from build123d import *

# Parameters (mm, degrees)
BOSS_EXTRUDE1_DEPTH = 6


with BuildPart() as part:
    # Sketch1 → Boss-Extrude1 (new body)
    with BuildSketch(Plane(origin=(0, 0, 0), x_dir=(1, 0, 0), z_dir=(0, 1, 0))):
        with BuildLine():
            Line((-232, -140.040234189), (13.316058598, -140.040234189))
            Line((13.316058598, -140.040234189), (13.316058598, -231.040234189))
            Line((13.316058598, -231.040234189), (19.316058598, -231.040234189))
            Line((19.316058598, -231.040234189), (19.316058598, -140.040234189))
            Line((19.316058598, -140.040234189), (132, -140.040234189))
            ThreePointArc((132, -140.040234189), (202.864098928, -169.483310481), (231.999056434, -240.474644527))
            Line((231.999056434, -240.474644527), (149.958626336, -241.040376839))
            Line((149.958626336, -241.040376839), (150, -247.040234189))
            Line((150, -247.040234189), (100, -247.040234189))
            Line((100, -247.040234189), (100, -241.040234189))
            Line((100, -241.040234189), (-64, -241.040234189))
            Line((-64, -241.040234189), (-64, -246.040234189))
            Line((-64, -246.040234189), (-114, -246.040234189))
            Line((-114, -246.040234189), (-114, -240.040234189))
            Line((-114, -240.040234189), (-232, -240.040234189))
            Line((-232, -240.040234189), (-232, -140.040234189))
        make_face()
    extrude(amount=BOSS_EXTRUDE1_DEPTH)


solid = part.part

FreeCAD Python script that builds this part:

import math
import FreeCAD as App
import Part
import Sketcher
from FreeCAD import Vector

doc = App.newDocument("Part")
body = doc.addObject("PartDesign::Body", "Body")

# Sketch on XZ plane
sketch1 = body.newObject("Sketcher::SketchObject", "Sketch")
sketch1.AttachmentSupport = (doc.getObject("XZ_Plane"), [""])
sketch1.MapMode = "FlatFace"
sketch1.addGeometry(Part.LineSegment(Vector(13, 140, 0), Vector(-232, 140, 0)), False)
sketch1.addGeometry(Part.LineSegment(Vector(-232, 140, 0), Vector(-232, 240, 0)), False)
sketch1.addGeometry(Part.LineSegment(Vector(-232, 240, 0), Vector(-114, 240, 0)), False)
sketch1.addGeometry(Part.LineSegment(Vector(-114, 240, 0), Vector(-114, 246, 0)), False)
sketch1.addGeometry(Part.LineSegment(Vector(-114, 246, 0), Vector(-64, 246, 0)), False)
sketch1.addGeometry(Part.LineSegment(Vector(-64, 246, 0), Vector(-64, 241, 0)), False)
sketch1.addGeometry(Part.LineSegment(Vector(-64, 241, 0), Vector(100, 241, 0)), False)
sketch1.addGeometry(Part.LineSegment(Vector(100, 241, 0), Vector(100, 247, 0)), False)
sketch1.addGeometry(Part.LineSegment(Vector(100, 247, 0), Vector(150, 247, 0)), False)
sketch1.addGeometry(Part.LineSegment(Vector(150, 247, 0), Vector(150, 241, 0)), False)
sketch1.addGeometry(Part.LineSegment(Vector(150, 241, 0), Vector(232, 240, 0)), False)
sketch1.addGeometry(Part.ArcOfCircle(Part.Circle(Vector(132, 240, 0), Vector(0, 0, 1), 100), math.radians(-90), math.radians(0)), False)
sketch1.addGeometry(Part.LineSegment(Vector(132, 140, 0), Vector(19, 140, 0)), False)
sketch1.addGeometry(Part.LineSegment(Vector(19, 140, 0), Vector(19, 231, 0)), False)
sketch1.addGeometry(Part.LineSegment(Vector(19, 231, 0), Vector(13, 231, 0)), False)
sketch1.addGeometry(Part.LineSegment(Vector(13, 231, 0), Vector(13, 140, 0)), False)
sketch1.addConstraint(Sketcher.Constraint("Coincident", 0, 2, 1, 1))
sketch1.addConstraint(Sketcher.Constraint("Coincident", 1, 2, 2, 1))
sketch1.addConstraint(Sketcher.Constraint("Coincident", 2, 2, 3, 1))
sketch1.addConstraint(Sketcher.Constraint("Coincident", 3, 2, 4, 1))
sketch1.addConstraint(Sketcher.Constraint("Coincident", 4, 2, 5, 1))
sketch1.addConstraint(Sketcher.Constraint("Coincident", 5, 2, 6, 1))
sketch1.addConstraint(Sketcher.Constraint("Coincident", 6, 2, 7, 1))
sketch1.addConstraint(Sketcher.Constraint("Coincident", 7, 2, 8, 1))
sketch1.addConstraint(Sketcher.Constraint("Coincident", 8, 2, 9, 1))
sketch1.addConstraint(Sketcher.Constraint("Coincident", 9, 2, 10, 1))
sketch1.addConstraint(Sketcher.Constraint("Coincident", 10, 2, 11, 2))
sketch1.addConstraint(Sketcher.Constraint("Tangent", 11, 1, 12, 1))
sketch1.addConstraint(Sketcher.Constraint("Coincident", 12, 2, 13, 1))
sketch1.addConstraint(Sketcher.Constraint("Coincident", 13, 2, 14, 1))
sketch1.addConstraint(Sketcher.Constraint("Coincident", 14, 2, 15, 1))
sketch1.addConstraint(Sketcher.Constraint("Coincident", 15, 2, 0, 1))
sketch1.addConstraint(Sketcher.Constraint("Horizontal", 0))
sketch1.addConstraint(Sketcher.Constraint("Vertical", 1))
sketch1.addConstraint(Sketcher.Constraint("Horizontal", 2))
sketch1.addConstraint(Sketcher.Constraint("Vertical", 3))
sketch1.addConstraint(Sketcher.Constraint("Horizontal", 4))
sketch1.addConstraint(Sketcher.Constraint("Vertical", 5))
sketch1.addConstraint(Sketcher.Constraint("Horizontal", 6))
sketch1.addConstraint(Sketcher.Constraint("Vertical", 7))
sketch1.addConstraint(Sketcher.Constraint("Horizontal", 8))
sketch1.addConstraint(Sketcher.Constraint("Horizontal", 12))
sketch1.addConstraint(Sketcher.Constraint("Vertical", 13))
sketch1.addConstraint(Sketcher.Constraint("Horizontal", 14))
sketch1.addConstraint(Sketcher.Constraint("Vertical", 15))
sketch1.addConstraint(Sketcher.Constraint("Perpendicular", 9, 10))
sketch1.addConstraint(Sketcher.Constraint("Horizontal", 11, 3, 1, 2))
sketch1.addConstraint(Sketcher.Constraint("Horizontal", 0, 2, 11, 1))
sketch1.addConstraint(Sketcher.Constraint("Equal", 4, 8))
sketch1.addConstraint(Sketcher.Constraint("Equal", 14, 3))
sketch1.addConstraint(Sketcher.Constraint("Equal", 3, 7))
sketch1.addConstraint(Sketcher.Constraint("Radius", 11, 100.0))
sketch1.addConstraint(Sketcher.Constraint("DistanceX", 2, 1, 2, 2, 118.0))
sketch1.addConstraint(Sketcher.Constraint("DistanceX", 4, 1, 4, 2, 50.0))
sketch1.addConstraint(Sketcher.Constraint("DistanceX", 6, 1, 6, 2, 164.0))
sketch1.addConstraint(Sketcher.Constraint("DistanceX", 14, 2, 14, 1, 6.0))
sketch1.addConstraint(Sketcher.Constraint("DistanceY", 5, 2, 5, 1, 5.0))
sketch1.addConstraint(Sketcher.Constraint("DistanceY", 13, 1, 13, 2, 91.0))
sketch1.addConstraint(Sketcher.Constraint("Distance", 9, 6.0))
sketch1.addConstraint(Sketcher.Constraint("DistanceX", -1, 1, 11, 3, 132.0))
sketch1.addConstraint(Sketcher.Constraint("DistanceX", 0, 2, -1, 1, 232.0))
sketch1.addConstraint(Sketcher.Constraint("DistanceX", 0, 2, 0, 1, 245.316059))
sketch1.addConstraint(Sketcher.Constraint("Distance", 10, 82.042381))
sketch1.addConstraint(Sketcher.Constraint("DistanceY", -1, 1, 11, 3, 240.040234))
pad1 = body.newObject("PartDesign::Pad", "Pad")
pad1.Profile = sketch1
pad1.Length = 6
pad1.Reversed = True

doc.recompute()
